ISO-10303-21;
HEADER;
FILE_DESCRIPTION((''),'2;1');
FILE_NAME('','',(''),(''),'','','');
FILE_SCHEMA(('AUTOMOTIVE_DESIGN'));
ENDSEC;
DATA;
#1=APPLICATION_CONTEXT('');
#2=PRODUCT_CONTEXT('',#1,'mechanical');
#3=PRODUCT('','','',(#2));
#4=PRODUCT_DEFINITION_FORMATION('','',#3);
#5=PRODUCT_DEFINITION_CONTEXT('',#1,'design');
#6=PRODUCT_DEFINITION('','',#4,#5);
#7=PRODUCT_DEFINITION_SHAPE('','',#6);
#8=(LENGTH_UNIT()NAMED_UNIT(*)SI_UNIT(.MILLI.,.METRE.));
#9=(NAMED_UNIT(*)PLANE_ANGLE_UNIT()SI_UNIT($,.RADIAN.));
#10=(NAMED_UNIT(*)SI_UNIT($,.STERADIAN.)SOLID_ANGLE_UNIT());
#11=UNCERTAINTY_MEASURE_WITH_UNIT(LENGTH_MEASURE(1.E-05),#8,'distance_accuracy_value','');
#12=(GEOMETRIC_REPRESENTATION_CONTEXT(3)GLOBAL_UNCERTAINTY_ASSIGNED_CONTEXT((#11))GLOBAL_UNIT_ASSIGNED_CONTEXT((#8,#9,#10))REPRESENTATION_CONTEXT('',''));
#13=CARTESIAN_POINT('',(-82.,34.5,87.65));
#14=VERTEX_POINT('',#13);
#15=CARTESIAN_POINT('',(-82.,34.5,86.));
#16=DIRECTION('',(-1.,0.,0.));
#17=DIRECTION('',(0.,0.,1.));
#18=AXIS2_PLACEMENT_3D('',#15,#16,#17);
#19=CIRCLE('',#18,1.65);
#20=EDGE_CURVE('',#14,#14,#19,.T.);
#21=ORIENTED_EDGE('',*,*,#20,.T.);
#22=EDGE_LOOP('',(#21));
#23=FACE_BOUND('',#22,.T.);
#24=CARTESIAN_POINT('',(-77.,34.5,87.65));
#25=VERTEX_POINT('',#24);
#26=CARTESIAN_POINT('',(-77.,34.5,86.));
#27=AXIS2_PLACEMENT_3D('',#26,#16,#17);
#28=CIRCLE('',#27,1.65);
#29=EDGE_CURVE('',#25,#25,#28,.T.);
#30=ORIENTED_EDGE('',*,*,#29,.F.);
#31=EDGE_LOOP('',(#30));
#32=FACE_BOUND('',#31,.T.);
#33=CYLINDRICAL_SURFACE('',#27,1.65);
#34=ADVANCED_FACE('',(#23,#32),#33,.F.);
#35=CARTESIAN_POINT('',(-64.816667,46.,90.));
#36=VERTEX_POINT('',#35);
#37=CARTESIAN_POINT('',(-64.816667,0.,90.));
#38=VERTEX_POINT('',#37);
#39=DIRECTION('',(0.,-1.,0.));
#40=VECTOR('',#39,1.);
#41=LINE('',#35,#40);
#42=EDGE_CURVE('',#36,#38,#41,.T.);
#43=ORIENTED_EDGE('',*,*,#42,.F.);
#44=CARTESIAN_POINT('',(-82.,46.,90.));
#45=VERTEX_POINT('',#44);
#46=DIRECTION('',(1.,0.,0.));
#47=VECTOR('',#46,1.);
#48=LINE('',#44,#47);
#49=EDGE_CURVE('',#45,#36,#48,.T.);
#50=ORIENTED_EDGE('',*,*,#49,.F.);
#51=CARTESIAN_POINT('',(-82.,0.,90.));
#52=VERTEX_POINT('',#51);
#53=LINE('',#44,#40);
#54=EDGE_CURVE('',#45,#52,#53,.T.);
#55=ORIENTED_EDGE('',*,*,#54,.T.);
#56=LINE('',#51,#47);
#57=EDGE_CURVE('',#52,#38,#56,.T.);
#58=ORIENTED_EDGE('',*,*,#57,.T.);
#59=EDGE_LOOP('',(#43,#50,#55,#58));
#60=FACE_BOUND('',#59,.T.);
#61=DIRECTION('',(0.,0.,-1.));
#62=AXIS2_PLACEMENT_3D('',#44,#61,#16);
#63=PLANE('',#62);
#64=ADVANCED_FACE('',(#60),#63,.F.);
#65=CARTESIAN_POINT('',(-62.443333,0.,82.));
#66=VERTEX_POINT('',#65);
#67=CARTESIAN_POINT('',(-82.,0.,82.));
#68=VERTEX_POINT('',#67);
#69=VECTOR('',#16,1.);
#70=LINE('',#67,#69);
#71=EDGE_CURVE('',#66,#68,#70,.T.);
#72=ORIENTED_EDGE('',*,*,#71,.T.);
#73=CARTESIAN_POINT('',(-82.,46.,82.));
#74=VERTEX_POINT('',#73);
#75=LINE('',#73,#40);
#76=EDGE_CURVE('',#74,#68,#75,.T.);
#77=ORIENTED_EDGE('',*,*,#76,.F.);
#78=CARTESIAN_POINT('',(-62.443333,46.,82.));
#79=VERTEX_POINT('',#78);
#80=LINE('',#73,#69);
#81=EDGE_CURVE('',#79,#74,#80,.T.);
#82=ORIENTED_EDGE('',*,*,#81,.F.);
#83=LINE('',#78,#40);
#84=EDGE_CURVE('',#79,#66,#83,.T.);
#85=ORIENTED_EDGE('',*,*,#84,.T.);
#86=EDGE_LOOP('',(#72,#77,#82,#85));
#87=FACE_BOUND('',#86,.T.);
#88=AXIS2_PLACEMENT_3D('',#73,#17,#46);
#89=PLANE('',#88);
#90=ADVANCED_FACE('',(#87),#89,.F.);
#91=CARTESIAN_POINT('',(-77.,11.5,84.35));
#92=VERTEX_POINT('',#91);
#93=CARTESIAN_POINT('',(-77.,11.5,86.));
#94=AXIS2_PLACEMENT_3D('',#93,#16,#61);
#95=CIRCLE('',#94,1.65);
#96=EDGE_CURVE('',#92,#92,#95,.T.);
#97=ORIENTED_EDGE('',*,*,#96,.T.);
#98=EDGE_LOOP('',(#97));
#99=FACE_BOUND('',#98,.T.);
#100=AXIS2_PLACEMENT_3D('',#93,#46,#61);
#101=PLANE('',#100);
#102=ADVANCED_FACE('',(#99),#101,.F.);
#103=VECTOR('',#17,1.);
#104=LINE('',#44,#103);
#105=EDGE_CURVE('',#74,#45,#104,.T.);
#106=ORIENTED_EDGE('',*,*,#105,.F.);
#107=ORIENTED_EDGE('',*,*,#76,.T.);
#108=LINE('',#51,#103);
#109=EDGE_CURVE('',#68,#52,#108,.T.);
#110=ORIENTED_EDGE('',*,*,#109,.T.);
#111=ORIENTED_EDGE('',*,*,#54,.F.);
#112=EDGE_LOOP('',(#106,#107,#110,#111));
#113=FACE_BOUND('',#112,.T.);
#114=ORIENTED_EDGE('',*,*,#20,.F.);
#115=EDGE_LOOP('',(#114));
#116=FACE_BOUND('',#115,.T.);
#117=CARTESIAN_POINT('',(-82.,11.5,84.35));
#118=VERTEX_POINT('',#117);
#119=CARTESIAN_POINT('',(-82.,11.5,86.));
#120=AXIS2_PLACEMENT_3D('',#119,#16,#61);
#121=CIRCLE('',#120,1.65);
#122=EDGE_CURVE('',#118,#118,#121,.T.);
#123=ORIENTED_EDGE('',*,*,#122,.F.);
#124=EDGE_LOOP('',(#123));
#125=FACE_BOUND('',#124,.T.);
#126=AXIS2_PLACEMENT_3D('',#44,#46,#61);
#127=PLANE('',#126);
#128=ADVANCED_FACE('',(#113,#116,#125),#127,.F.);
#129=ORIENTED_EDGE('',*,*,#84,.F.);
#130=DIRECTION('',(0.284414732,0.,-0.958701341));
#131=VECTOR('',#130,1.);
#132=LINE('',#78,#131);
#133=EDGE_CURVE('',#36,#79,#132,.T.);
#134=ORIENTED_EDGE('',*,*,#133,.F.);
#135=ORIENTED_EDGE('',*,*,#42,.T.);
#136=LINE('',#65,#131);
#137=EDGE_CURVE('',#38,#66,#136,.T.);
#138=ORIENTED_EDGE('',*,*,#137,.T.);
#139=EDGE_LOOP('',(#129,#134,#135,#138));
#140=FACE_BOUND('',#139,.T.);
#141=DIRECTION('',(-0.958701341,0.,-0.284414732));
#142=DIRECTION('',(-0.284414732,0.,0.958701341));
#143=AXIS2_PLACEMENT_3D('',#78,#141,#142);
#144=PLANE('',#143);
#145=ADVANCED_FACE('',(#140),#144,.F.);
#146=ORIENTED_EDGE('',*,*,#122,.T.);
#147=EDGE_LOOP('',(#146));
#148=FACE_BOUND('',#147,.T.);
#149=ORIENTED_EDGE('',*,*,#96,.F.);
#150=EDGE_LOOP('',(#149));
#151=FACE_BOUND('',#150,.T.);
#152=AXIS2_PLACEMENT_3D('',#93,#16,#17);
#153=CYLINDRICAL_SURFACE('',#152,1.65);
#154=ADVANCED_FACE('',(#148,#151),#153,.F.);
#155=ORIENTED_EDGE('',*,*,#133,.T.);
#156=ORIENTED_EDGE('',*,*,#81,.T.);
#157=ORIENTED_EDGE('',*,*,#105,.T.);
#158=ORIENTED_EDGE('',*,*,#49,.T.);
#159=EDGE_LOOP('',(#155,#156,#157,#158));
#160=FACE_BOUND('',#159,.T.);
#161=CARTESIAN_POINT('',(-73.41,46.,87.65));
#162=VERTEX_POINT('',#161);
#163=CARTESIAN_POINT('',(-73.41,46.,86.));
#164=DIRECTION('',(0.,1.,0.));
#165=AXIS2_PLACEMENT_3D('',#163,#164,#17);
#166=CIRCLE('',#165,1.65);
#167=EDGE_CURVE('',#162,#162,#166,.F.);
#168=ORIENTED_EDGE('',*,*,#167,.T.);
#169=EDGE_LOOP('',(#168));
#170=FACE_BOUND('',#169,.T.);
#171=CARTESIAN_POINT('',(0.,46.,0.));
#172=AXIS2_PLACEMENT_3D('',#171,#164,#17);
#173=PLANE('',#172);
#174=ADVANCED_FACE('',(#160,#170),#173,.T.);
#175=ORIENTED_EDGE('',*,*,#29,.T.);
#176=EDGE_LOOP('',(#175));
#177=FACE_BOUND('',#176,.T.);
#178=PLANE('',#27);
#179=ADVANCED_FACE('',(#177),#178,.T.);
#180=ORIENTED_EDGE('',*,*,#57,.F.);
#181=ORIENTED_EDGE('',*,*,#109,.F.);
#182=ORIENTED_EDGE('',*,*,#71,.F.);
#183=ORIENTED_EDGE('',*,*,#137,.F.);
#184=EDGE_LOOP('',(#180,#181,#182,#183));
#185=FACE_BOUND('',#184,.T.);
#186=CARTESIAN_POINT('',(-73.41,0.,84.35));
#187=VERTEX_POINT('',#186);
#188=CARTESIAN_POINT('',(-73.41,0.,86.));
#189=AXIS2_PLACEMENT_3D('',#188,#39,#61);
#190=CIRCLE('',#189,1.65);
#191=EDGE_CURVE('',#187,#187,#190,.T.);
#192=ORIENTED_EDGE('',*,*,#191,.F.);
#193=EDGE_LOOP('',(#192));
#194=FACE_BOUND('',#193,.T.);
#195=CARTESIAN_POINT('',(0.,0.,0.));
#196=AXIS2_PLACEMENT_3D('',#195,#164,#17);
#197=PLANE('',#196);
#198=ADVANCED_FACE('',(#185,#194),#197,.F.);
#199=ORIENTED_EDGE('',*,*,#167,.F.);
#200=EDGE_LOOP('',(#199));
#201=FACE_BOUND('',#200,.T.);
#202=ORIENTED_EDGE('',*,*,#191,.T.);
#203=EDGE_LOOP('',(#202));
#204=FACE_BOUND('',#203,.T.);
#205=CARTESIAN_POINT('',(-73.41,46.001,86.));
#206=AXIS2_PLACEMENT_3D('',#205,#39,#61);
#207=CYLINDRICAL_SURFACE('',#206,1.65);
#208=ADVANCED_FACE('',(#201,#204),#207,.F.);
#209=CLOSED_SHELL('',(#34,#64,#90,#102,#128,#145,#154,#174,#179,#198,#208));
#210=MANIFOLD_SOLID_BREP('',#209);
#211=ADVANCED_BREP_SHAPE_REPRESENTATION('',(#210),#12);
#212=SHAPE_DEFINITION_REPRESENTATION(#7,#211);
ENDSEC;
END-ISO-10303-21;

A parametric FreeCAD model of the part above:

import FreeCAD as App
import Part
import Sketcher

V = App.Vector
Q = App.Units.Quantity

doc = App.newDocument("Part")
body = doc.addObject("PartDesign::Body", "Body")

# Sketch on XZ plane
sketch1 = body.newObject("Sketcher::SketchObject", "Sketch")
sketch1.AttachmentSupport = (doc.getObject("XZ_Plane"), [""])
sketch1.MapMode = "FlatFace"
sketch1.addGeometry(Part.LineSegment(V(-64.816667, 90, 0), V(-62.443333, 82, 0)), False)
sketch1.addGeometry(Part.LineSegment(V(-62.443333, 82, 0), V(-82, 82, 0)), False)
sketch1.addGeometry(Part.LineSegment(V(-82, 82, 0), V(-82, 90, 0)), False)
sketch1.addGeometry(Part.LineSegment(V(-82, 90, 0), V(-64.816667, 90, 0)), False)
sketch1.addConstraint(Sketcher.Constraint("Coincident", 0, 2, 1, 1))
sketch1.addConstraint(Sketcher.Constraint("Coincident", 1, 2, 2, 1))
sketch1.addConstraint(Sketcher.Constraint("Coincident", 2, 2, 3, 1))
sketch1.addConstraint(Sketcher.Constraint("Coincident", 3, 2, 0, 1))
sketch1.addConstraint(Sketcher.Constraint("Horizontal", 1))
sketch1.addConstraint(Sketcher.Constraint("Vertical", 2))
sketch1.addConstraint(Sketcher.Constraint("Horizontal", 3))
sketch1.addConstraint(Sketcher.Constraint("DistanceY", 2, 1, 2, 2, Q("8 mm")))
sketch1.addConstraint(Sketcher.Constraint("DistanceY", -1, 1, 0, 2, Q("82 mm")))
sketch1.addConstraint(Sketcher.Constraint("DistanceX", 1, 2, -1, 1, Q("82 mm")))
sketch1.addConstraint(Sketcher.Constraint("Distance", 0, Q("8.344622 mm")))
sketch1.addConstraint(Sketcher.Constraint("DistanceX", 1, 2, 1, 1, Q("19.556667 mm")))
pad1 = body.newObject("PartDesign::Pad", "Pad")
pad1.Profile = sketch1
pad1.Length = 46
pad1.Reversed = True

# Sketch on XZ plane
sketch2 = body.newObject("Sketcher::SketchObject", "Sketch001")
sketch2.AttachmentSupport = (doc.getObject("XZ_Plane"), [""])
sketch2.MapMode = "FlatFace"
sketch2.addGeometry(Part.Circle(V(-73.41, 86, 0), V(0, 0, 1), 1.65), False)
sketch2.addConstraint(Sketcher.Constraint("Diameter", 0, Q("3.3 mm")))
sketch2.addConstraint(Sketcher.Constraint("DistanceY", -1, 1, 0, 3, Q("86 mm")))
sketch2.addConstraint(Sketcher.Constraint("DistanceX", 0, 3, -1, 1, Q("73.41 mm")))
pocket1 = body.newObject("PartDesign::Pocket", "Pocket")
pocket1.Profile = sketch2
pocket1.Type = "UpToFirst"

# Sketch on YZ plane
sketch3 = body.newObject("Sketcher::SketchObject", "Sketch002")
sketch3.AttachmentSupport = (doc.getObject("YZ_Plane"), [""])
sketch3.MapMode = "FlatFace"
sketch3.AttachmentOffset = App.Placement(V(0, 0, -82), App.Rotation())
sketch3.addGeometry(Part.Circle(V(34.5, 86, 0), V(0, 0, 1), 1.65), False)
sketch3.addGeometry(Part.Circle(V(11.5, 86, 0), V(0, 0, 1), 1.65), False)
sketch3.addConstraint(Sketcher.Constraint("Equal", 0, 1))
sketch3.addConstraint(Sketcher.Constraint("Horizontal", 0, 3, 1, 3))
sketch3.addConstraint(Sketcher.Constraint("Diameter", 0, Q("3.3 mm")))
sketch3.addConstraint(Sketcher.Constraint("DistanceY", -1, 1, 0, 3, Q("86 mm")))
sketch3.addConstraint(Sketcher.Constraint("DistanceX", 1, 3, 0, 3, Q("23 mm")))
sketch3.addConstraint(Sketcher.Constraint("DistanceX", -1, 1, 0, 3, Q("34.5 mm")))
pocket2 = body.newObject("PartDesign::Pocket", "Pocket001")
pocket2.Profile = sketch3
pocket2.Length = 5
pocket2.Reversed = True

doc.recompute()
